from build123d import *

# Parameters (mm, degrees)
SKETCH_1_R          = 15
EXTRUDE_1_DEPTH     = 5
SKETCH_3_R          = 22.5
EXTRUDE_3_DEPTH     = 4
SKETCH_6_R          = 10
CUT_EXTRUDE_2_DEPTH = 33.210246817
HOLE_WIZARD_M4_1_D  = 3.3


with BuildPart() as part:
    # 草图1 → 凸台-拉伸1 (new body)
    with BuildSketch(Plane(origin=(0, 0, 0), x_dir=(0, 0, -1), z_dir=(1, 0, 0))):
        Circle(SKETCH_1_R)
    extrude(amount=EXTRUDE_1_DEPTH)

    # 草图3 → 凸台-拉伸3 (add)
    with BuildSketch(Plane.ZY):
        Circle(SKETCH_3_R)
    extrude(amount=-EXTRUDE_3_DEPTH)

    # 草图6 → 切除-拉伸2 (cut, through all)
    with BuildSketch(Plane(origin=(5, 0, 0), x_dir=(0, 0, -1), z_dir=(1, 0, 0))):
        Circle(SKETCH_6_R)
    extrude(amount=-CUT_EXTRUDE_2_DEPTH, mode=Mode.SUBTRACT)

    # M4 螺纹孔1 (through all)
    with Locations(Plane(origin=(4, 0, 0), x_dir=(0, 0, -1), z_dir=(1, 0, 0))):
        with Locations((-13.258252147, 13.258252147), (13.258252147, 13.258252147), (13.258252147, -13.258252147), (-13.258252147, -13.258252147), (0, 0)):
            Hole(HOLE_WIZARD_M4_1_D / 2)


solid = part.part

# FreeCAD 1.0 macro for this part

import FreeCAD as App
import Part
import Sketcher
Q = App.Units.Quantity

doc = App.newDocument("Part")
body = doc.addObject("PartDesign::Body", "Body")

sketch1 = body.newObject("Sketcher::SketchObject", "Sketch")
sketch1.AttachmentSupport = (doc.getObject("YZ_Plane"), [""])
sketch1.MapMode = "FlatFace"
sketch1.addGeometry(Part.Circle(App.Vector(0, 0, 0), App.Vector(0, 0, 1), 15), False)
sketch1.addConstraint([
    Sketcher.Constraint("Coincident", 0, 3, -1, 1),
    Sketcher.Constraint("Diameter", 0, Q("30 mm")),
])
pad1 = body.newObject("PartDesign::Pad", "Pad")
pad1.Profile = sketch1
pad1.Length = 5

sketch2 = body.newObject("Sketcher::SketchObject", "Sketch001")
sketch2.AttachmentSupport = (doc.getObject("YZ_Plane"), [""])
sketch2.MapMode = "FlatFace"
sketch2.addGeometry(Part.Circle(App.Vector(0, 0, 0), App.Vector(0, 0, 1), 22.5), False)
sketch2.addConstraint([
    Sketcher.Constraint("Coincident", 0, 3, -1, 1),
    Sketcher.Constraint("Diameter", 0, Q("45 mm")),
])
pad2 = body.newObject("PartDesign::Pad", "Pad001")
pad2.Profile = sketch2
pad2.Length = 4

sketch3 = body.newObject("Sketcher::SketchObject", "Sketch002")
sketch3.AttachmentSupport = (doc.getObject("YZ_Plane"), [""])
sketch3.MapMode = "FlatFace"
sketch3.AttachmentOffset = App.Placement(App.Vector(0, 0, 5), App.Rotation())
sketch3.addGeometry(Part.Circle(App.Vector(0, 0, 0), App.Vector(0, 0, 1), 10), False)
sketch3.addConstraint([
    Sketcher.Constraint("Coincident", 0, 3, -1, 1),
    Sketcher.Constraint("Diameter", 0, Q("20 mm")),
])
pocket1 = body.newObject("PartDesign::Pocket", "Pocket")
pocket1.Profile = sketch3
pocket1.Type = "ThroughAll"

sketch4 = body.newObject("Sketcher::SketchObject", "Sketch003")
sketch4.AttachmentSupport = (doc.getObject("YZ_Plane"), [""])
sketch4.MapMode = "FlatFace"
sketch4.AttachmentOffset = App.Placement(App.Vector(0, 0, 4), App.Rotation())
sketch4.addGeometry([
    Part.Circle(App.Vector(13.258252, 13.258252, 0), App.Vector(0, 0, 1), 1.65),
    Part.Circle(App.Vector(13.258252, -13.258252, 0), App.Vector(0, 0, 1), 1.65),
    Part.Circle(App.Vector(-13.258252, -13.258252, 0), App.Vector(0, 0, 1), 1.65),
    Part.Circle(App.Vector(-13.258252, 13.258252, 0), App.Vector(0, 0, 1), 1.65),
    Part.Circle(App.Vector(0, 0, 0), App.Vector(0, 0, 1), 1.65),
], False)
sketch4.addConstraint([
    Sketcher.Constraint("Coincident", 4, 3, -1, 1),
    Sketcher.Constraint("Equal", 0, 1),
    Sketcher.Constraint("Equal", 1, 2),
    Sketcher.Constraint("Equal", 2, 3),
    Sketcher.Constraint("Equal", 3, 4),
    Sketcher.Constraint("Symmetric", 0, 3, 2, 3, -1, 1),
    Sketcher.Constraint("Symmetric", 1, 3, 3, 3, -1, 1),
    Sketcher.Constraint("Symmetric", 1, 3, 2, 3, -2),
    Sketcher.Constraint("Diameter", 0, Q("3.3 mm")),
    Sketcher.Constraint("DistanceX", -1, 1, 0, 3, Q("13.258252 mm")),
    Sketcher.Constraint("DistanceY", -1, 1, 0, 3, Q("13.258252 mm")),
])
doc.recompute()
hole = body.newObject("PartDesign::Hole", "Hole")
hole.Profile = sketch4
hole.ThreadType = "None"
hole.Diameter = 3.3
hole.DepthType = "ThroughAll"

doc.recompute()
